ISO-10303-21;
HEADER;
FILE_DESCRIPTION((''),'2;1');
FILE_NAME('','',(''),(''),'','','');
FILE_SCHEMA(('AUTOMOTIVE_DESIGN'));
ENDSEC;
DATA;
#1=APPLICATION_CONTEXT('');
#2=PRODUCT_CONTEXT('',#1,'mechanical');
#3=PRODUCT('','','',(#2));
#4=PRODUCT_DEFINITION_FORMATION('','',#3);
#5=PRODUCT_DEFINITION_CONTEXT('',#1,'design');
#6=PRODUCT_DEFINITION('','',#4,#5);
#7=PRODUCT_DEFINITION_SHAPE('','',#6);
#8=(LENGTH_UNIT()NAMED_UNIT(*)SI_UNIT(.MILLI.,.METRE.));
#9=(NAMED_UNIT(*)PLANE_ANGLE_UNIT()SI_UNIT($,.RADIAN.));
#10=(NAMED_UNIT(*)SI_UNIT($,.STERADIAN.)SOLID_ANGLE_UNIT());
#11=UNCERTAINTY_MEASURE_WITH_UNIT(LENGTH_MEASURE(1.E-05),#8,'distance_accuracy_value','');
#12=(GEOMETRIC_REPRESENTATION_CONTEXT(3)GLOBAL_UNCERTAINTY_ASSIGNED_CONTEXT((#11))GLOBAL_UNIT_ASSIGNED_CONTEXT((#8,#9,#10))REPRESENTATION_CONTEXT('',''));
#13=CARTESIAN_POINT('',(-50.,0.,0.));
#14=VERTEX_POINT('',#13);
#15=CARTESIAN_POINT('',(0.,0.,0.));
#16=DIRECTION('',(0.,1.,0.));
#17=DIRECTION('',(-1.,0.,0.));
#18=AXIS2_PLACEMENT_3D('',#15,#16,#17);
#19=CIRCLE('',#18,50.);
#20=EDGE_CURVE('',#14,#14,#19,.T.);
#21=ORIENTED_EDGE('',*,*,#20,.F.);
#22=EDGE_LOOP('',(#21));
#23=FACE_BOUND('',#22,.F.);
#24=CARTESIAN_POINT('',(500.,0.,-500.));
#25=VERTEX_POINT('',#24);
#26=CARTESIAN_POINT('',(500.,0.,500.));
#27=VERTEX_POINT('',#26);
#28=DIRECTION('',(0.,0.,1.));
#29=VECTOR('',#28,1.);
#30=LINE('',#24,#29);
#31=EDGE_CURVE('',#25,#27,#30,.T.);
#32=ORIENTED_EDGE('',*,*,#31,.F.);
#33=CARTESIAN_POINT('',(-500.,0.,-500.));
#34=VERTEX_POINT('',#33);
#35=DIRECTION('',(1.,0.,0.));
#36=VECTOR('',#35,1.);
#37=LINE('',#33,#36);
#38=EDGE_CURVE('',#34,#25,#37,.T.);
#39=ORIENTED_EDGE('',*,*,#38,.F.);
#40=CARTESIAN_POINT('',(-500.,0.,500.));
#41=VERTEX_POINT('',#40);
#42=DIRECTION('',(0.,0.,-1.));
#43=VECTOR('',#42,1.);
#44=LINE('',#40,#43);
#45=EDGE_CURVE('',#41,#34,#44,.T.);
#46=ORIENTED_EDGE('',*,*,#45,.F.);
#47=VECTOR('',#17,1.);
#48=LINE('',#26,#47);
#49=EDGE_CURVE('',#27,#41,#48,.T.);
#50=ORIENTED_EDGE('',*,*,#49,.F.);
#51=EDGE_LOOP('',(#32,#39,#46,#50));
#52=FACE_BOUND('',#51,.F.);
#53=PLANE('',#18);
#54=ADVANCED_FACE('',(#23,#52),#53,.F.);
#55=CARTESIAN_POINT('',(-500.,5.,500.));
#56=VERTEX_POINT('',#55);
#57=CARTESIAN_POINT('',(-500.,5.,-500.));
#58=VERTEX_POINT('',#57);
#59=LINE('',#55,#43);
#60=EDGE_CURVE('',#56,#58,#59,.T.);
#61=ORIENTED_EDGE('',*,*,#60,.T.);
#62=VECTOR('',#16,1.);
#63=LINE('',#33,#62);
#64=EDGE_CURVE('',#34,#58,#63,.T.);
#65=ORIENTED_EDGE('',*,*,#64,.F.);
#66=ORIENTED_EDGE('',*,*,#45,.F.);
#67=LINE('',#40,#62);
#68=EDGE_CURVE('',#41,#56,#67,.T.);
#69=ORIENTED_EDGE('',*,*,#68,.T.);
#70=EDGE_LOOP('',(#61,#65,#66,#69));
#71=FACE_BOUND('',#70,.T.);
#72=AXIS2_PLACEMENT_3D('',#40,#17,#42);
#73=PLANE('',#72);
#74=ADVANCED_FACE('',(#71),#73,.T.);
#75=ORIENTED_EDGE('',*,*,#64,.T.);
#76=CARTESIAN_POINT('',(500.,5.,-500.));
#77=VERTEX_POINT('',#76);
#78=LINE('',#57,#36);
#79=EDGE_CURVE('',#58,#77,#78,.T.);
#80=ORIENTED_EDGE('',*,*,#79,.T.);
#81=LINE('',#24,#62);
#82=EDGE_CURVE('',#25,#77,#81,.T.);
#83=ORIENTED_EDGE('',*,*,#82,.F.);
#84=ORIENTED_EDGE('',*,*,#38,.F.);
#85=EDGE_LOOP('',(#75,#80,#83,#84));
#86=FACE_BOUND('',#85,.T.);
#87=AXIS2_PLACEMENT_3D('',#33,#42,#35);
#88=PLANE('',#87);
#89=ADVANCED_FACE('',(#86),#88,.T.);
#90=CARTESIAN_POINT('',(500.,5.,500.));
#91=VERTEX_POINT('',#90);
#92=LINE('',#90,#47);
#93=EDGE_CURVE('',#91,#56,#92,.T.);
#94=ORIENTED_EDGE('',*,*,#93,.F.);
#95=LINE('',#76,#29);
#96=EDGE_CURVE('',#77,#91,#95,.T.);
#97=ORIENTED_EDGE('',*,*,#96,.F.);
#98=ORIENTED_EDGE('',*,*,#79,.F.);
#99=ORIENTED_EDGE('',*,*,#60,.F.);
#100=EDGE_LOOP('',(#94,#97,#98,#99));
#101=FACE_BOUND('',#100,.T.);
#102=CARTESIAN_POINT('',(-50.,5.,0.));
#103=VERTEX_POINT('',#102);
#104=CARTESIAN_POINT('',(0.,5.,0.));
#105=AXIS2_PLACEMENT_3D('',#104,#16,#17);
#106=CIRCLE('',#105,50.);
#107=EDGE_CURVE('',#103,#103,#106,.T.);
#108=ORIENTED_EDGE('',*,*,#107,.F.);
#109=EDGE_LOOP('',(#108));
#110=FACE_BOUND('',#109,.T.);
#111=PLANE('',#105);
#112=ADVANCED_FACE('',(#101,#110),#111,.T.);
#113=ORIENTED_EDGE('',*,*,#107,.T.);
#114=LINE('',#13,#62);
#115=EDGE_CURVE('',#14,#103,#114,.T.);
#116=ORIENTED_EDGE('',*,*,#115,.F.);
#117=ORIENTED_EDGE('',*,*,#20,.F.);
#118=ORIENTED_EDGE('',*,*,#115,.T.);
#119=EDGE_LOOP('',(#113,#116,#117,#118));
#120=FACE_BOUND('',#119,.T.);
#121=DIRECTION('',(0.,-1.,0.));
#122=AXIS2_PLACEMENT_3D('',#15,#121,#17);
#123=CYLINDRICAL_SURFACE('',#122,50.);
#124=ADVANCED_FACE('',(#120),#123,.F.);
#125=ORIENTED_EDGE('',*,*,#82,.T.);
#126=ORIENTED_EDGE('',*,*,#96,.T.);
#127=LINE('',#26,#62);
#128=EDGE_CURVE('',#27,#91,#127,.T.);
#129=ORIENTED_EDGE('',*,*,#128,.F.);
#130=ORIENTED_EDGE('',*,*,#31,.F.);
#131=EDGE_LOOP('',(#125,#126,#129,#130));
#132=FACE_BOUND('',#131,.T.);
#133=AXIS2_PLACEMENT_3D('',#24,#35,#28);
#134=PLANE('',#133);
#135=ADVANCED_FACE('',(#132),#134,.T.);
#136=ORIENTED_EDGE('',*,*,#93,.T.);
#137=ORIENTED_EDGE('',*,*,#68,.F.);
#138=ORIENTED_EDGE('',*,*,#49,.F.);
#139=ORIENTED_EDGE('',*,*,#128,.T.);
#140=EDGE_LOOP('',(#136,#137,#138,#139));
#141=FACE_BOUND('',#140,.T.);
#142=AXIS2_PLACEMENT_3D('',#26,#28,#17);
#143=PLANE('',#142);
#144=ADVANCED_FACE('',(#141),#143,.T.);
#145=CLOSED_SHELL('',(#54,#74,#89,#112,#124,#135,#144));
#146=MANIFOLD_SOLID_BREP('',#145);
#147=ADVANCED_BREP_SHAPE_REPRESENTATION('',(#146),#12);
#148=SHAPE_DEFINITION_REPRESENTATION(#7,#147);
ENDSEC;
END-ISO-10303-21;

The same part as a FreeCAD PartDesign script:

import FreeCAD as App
import Part
import Sketcher


def add_polygon(sketch, points):
    """Adds a closed chain of lines whose ends are joined by coincident constraints."""
    first, n = sketch.GeometryCount, len(points)
    for a, b in zip(points, points[1:] + points[:1]):
        sketch.addGeometry(Part.LineSegment(App.Vector(*a, 0), App.Vector(*b, 0)), False)
    for i in range(n):
        sketch.addConstraint(Sketcher.Constraint("Coincident", first + i, 2, first + (i + 1) % n, 1))

doc = App.newDocument("Part")
body = doc.addObject("PartDesign::Body", "Body")

# Sketch on XZ plane
sketch1 = doc.addObject("Sketcher::SketchObject", "Sketch")
body.addObject(sketch1)
sketch1.AttachmentSupport = (doc.XZ_Plane, [""])
sketch1.MapMode = "FlatFace"
add_polygon(sketch1, [(500, -500), (-500, -500), (-500, 500), (500, 500)])  # lines 0-3
sketch1.addGeometry(Part.Circle(App.Vector(0, 0, 0), App.Vector(0, 0, 1), 50), False)  # 4
sketch1.addConstraint([
    Sketcher.Constraint("Horizontal", 0),
    Sketcher.Constraint("Vertical", 1),
    Sketcher.Constraint("Horizontal", 2),
    Sketcher.Constraint("Vertical", 3),
    Sketcher.Constraint("Coincident", 4, 3, -1, 1),
    Sketcher.Constraint("Symmetric", 0, 2, 2, 2, -1, 1),
    Sketcher.Constraint("Equal", 2, 1),
    Sketcher.Constraint("Diameter", 4, 100.0),
    Sketcher.Constraint("DistanceX", 0, 2, 0, 1, 1000.0),
])
pad1 = doc.addObject("PartDesign::Pad", "Pad")
body.addObject(pad1)
pad1.Profile = sketch1
pad1.Length = 5
pad1.Reversed = True

doc.recompute()
